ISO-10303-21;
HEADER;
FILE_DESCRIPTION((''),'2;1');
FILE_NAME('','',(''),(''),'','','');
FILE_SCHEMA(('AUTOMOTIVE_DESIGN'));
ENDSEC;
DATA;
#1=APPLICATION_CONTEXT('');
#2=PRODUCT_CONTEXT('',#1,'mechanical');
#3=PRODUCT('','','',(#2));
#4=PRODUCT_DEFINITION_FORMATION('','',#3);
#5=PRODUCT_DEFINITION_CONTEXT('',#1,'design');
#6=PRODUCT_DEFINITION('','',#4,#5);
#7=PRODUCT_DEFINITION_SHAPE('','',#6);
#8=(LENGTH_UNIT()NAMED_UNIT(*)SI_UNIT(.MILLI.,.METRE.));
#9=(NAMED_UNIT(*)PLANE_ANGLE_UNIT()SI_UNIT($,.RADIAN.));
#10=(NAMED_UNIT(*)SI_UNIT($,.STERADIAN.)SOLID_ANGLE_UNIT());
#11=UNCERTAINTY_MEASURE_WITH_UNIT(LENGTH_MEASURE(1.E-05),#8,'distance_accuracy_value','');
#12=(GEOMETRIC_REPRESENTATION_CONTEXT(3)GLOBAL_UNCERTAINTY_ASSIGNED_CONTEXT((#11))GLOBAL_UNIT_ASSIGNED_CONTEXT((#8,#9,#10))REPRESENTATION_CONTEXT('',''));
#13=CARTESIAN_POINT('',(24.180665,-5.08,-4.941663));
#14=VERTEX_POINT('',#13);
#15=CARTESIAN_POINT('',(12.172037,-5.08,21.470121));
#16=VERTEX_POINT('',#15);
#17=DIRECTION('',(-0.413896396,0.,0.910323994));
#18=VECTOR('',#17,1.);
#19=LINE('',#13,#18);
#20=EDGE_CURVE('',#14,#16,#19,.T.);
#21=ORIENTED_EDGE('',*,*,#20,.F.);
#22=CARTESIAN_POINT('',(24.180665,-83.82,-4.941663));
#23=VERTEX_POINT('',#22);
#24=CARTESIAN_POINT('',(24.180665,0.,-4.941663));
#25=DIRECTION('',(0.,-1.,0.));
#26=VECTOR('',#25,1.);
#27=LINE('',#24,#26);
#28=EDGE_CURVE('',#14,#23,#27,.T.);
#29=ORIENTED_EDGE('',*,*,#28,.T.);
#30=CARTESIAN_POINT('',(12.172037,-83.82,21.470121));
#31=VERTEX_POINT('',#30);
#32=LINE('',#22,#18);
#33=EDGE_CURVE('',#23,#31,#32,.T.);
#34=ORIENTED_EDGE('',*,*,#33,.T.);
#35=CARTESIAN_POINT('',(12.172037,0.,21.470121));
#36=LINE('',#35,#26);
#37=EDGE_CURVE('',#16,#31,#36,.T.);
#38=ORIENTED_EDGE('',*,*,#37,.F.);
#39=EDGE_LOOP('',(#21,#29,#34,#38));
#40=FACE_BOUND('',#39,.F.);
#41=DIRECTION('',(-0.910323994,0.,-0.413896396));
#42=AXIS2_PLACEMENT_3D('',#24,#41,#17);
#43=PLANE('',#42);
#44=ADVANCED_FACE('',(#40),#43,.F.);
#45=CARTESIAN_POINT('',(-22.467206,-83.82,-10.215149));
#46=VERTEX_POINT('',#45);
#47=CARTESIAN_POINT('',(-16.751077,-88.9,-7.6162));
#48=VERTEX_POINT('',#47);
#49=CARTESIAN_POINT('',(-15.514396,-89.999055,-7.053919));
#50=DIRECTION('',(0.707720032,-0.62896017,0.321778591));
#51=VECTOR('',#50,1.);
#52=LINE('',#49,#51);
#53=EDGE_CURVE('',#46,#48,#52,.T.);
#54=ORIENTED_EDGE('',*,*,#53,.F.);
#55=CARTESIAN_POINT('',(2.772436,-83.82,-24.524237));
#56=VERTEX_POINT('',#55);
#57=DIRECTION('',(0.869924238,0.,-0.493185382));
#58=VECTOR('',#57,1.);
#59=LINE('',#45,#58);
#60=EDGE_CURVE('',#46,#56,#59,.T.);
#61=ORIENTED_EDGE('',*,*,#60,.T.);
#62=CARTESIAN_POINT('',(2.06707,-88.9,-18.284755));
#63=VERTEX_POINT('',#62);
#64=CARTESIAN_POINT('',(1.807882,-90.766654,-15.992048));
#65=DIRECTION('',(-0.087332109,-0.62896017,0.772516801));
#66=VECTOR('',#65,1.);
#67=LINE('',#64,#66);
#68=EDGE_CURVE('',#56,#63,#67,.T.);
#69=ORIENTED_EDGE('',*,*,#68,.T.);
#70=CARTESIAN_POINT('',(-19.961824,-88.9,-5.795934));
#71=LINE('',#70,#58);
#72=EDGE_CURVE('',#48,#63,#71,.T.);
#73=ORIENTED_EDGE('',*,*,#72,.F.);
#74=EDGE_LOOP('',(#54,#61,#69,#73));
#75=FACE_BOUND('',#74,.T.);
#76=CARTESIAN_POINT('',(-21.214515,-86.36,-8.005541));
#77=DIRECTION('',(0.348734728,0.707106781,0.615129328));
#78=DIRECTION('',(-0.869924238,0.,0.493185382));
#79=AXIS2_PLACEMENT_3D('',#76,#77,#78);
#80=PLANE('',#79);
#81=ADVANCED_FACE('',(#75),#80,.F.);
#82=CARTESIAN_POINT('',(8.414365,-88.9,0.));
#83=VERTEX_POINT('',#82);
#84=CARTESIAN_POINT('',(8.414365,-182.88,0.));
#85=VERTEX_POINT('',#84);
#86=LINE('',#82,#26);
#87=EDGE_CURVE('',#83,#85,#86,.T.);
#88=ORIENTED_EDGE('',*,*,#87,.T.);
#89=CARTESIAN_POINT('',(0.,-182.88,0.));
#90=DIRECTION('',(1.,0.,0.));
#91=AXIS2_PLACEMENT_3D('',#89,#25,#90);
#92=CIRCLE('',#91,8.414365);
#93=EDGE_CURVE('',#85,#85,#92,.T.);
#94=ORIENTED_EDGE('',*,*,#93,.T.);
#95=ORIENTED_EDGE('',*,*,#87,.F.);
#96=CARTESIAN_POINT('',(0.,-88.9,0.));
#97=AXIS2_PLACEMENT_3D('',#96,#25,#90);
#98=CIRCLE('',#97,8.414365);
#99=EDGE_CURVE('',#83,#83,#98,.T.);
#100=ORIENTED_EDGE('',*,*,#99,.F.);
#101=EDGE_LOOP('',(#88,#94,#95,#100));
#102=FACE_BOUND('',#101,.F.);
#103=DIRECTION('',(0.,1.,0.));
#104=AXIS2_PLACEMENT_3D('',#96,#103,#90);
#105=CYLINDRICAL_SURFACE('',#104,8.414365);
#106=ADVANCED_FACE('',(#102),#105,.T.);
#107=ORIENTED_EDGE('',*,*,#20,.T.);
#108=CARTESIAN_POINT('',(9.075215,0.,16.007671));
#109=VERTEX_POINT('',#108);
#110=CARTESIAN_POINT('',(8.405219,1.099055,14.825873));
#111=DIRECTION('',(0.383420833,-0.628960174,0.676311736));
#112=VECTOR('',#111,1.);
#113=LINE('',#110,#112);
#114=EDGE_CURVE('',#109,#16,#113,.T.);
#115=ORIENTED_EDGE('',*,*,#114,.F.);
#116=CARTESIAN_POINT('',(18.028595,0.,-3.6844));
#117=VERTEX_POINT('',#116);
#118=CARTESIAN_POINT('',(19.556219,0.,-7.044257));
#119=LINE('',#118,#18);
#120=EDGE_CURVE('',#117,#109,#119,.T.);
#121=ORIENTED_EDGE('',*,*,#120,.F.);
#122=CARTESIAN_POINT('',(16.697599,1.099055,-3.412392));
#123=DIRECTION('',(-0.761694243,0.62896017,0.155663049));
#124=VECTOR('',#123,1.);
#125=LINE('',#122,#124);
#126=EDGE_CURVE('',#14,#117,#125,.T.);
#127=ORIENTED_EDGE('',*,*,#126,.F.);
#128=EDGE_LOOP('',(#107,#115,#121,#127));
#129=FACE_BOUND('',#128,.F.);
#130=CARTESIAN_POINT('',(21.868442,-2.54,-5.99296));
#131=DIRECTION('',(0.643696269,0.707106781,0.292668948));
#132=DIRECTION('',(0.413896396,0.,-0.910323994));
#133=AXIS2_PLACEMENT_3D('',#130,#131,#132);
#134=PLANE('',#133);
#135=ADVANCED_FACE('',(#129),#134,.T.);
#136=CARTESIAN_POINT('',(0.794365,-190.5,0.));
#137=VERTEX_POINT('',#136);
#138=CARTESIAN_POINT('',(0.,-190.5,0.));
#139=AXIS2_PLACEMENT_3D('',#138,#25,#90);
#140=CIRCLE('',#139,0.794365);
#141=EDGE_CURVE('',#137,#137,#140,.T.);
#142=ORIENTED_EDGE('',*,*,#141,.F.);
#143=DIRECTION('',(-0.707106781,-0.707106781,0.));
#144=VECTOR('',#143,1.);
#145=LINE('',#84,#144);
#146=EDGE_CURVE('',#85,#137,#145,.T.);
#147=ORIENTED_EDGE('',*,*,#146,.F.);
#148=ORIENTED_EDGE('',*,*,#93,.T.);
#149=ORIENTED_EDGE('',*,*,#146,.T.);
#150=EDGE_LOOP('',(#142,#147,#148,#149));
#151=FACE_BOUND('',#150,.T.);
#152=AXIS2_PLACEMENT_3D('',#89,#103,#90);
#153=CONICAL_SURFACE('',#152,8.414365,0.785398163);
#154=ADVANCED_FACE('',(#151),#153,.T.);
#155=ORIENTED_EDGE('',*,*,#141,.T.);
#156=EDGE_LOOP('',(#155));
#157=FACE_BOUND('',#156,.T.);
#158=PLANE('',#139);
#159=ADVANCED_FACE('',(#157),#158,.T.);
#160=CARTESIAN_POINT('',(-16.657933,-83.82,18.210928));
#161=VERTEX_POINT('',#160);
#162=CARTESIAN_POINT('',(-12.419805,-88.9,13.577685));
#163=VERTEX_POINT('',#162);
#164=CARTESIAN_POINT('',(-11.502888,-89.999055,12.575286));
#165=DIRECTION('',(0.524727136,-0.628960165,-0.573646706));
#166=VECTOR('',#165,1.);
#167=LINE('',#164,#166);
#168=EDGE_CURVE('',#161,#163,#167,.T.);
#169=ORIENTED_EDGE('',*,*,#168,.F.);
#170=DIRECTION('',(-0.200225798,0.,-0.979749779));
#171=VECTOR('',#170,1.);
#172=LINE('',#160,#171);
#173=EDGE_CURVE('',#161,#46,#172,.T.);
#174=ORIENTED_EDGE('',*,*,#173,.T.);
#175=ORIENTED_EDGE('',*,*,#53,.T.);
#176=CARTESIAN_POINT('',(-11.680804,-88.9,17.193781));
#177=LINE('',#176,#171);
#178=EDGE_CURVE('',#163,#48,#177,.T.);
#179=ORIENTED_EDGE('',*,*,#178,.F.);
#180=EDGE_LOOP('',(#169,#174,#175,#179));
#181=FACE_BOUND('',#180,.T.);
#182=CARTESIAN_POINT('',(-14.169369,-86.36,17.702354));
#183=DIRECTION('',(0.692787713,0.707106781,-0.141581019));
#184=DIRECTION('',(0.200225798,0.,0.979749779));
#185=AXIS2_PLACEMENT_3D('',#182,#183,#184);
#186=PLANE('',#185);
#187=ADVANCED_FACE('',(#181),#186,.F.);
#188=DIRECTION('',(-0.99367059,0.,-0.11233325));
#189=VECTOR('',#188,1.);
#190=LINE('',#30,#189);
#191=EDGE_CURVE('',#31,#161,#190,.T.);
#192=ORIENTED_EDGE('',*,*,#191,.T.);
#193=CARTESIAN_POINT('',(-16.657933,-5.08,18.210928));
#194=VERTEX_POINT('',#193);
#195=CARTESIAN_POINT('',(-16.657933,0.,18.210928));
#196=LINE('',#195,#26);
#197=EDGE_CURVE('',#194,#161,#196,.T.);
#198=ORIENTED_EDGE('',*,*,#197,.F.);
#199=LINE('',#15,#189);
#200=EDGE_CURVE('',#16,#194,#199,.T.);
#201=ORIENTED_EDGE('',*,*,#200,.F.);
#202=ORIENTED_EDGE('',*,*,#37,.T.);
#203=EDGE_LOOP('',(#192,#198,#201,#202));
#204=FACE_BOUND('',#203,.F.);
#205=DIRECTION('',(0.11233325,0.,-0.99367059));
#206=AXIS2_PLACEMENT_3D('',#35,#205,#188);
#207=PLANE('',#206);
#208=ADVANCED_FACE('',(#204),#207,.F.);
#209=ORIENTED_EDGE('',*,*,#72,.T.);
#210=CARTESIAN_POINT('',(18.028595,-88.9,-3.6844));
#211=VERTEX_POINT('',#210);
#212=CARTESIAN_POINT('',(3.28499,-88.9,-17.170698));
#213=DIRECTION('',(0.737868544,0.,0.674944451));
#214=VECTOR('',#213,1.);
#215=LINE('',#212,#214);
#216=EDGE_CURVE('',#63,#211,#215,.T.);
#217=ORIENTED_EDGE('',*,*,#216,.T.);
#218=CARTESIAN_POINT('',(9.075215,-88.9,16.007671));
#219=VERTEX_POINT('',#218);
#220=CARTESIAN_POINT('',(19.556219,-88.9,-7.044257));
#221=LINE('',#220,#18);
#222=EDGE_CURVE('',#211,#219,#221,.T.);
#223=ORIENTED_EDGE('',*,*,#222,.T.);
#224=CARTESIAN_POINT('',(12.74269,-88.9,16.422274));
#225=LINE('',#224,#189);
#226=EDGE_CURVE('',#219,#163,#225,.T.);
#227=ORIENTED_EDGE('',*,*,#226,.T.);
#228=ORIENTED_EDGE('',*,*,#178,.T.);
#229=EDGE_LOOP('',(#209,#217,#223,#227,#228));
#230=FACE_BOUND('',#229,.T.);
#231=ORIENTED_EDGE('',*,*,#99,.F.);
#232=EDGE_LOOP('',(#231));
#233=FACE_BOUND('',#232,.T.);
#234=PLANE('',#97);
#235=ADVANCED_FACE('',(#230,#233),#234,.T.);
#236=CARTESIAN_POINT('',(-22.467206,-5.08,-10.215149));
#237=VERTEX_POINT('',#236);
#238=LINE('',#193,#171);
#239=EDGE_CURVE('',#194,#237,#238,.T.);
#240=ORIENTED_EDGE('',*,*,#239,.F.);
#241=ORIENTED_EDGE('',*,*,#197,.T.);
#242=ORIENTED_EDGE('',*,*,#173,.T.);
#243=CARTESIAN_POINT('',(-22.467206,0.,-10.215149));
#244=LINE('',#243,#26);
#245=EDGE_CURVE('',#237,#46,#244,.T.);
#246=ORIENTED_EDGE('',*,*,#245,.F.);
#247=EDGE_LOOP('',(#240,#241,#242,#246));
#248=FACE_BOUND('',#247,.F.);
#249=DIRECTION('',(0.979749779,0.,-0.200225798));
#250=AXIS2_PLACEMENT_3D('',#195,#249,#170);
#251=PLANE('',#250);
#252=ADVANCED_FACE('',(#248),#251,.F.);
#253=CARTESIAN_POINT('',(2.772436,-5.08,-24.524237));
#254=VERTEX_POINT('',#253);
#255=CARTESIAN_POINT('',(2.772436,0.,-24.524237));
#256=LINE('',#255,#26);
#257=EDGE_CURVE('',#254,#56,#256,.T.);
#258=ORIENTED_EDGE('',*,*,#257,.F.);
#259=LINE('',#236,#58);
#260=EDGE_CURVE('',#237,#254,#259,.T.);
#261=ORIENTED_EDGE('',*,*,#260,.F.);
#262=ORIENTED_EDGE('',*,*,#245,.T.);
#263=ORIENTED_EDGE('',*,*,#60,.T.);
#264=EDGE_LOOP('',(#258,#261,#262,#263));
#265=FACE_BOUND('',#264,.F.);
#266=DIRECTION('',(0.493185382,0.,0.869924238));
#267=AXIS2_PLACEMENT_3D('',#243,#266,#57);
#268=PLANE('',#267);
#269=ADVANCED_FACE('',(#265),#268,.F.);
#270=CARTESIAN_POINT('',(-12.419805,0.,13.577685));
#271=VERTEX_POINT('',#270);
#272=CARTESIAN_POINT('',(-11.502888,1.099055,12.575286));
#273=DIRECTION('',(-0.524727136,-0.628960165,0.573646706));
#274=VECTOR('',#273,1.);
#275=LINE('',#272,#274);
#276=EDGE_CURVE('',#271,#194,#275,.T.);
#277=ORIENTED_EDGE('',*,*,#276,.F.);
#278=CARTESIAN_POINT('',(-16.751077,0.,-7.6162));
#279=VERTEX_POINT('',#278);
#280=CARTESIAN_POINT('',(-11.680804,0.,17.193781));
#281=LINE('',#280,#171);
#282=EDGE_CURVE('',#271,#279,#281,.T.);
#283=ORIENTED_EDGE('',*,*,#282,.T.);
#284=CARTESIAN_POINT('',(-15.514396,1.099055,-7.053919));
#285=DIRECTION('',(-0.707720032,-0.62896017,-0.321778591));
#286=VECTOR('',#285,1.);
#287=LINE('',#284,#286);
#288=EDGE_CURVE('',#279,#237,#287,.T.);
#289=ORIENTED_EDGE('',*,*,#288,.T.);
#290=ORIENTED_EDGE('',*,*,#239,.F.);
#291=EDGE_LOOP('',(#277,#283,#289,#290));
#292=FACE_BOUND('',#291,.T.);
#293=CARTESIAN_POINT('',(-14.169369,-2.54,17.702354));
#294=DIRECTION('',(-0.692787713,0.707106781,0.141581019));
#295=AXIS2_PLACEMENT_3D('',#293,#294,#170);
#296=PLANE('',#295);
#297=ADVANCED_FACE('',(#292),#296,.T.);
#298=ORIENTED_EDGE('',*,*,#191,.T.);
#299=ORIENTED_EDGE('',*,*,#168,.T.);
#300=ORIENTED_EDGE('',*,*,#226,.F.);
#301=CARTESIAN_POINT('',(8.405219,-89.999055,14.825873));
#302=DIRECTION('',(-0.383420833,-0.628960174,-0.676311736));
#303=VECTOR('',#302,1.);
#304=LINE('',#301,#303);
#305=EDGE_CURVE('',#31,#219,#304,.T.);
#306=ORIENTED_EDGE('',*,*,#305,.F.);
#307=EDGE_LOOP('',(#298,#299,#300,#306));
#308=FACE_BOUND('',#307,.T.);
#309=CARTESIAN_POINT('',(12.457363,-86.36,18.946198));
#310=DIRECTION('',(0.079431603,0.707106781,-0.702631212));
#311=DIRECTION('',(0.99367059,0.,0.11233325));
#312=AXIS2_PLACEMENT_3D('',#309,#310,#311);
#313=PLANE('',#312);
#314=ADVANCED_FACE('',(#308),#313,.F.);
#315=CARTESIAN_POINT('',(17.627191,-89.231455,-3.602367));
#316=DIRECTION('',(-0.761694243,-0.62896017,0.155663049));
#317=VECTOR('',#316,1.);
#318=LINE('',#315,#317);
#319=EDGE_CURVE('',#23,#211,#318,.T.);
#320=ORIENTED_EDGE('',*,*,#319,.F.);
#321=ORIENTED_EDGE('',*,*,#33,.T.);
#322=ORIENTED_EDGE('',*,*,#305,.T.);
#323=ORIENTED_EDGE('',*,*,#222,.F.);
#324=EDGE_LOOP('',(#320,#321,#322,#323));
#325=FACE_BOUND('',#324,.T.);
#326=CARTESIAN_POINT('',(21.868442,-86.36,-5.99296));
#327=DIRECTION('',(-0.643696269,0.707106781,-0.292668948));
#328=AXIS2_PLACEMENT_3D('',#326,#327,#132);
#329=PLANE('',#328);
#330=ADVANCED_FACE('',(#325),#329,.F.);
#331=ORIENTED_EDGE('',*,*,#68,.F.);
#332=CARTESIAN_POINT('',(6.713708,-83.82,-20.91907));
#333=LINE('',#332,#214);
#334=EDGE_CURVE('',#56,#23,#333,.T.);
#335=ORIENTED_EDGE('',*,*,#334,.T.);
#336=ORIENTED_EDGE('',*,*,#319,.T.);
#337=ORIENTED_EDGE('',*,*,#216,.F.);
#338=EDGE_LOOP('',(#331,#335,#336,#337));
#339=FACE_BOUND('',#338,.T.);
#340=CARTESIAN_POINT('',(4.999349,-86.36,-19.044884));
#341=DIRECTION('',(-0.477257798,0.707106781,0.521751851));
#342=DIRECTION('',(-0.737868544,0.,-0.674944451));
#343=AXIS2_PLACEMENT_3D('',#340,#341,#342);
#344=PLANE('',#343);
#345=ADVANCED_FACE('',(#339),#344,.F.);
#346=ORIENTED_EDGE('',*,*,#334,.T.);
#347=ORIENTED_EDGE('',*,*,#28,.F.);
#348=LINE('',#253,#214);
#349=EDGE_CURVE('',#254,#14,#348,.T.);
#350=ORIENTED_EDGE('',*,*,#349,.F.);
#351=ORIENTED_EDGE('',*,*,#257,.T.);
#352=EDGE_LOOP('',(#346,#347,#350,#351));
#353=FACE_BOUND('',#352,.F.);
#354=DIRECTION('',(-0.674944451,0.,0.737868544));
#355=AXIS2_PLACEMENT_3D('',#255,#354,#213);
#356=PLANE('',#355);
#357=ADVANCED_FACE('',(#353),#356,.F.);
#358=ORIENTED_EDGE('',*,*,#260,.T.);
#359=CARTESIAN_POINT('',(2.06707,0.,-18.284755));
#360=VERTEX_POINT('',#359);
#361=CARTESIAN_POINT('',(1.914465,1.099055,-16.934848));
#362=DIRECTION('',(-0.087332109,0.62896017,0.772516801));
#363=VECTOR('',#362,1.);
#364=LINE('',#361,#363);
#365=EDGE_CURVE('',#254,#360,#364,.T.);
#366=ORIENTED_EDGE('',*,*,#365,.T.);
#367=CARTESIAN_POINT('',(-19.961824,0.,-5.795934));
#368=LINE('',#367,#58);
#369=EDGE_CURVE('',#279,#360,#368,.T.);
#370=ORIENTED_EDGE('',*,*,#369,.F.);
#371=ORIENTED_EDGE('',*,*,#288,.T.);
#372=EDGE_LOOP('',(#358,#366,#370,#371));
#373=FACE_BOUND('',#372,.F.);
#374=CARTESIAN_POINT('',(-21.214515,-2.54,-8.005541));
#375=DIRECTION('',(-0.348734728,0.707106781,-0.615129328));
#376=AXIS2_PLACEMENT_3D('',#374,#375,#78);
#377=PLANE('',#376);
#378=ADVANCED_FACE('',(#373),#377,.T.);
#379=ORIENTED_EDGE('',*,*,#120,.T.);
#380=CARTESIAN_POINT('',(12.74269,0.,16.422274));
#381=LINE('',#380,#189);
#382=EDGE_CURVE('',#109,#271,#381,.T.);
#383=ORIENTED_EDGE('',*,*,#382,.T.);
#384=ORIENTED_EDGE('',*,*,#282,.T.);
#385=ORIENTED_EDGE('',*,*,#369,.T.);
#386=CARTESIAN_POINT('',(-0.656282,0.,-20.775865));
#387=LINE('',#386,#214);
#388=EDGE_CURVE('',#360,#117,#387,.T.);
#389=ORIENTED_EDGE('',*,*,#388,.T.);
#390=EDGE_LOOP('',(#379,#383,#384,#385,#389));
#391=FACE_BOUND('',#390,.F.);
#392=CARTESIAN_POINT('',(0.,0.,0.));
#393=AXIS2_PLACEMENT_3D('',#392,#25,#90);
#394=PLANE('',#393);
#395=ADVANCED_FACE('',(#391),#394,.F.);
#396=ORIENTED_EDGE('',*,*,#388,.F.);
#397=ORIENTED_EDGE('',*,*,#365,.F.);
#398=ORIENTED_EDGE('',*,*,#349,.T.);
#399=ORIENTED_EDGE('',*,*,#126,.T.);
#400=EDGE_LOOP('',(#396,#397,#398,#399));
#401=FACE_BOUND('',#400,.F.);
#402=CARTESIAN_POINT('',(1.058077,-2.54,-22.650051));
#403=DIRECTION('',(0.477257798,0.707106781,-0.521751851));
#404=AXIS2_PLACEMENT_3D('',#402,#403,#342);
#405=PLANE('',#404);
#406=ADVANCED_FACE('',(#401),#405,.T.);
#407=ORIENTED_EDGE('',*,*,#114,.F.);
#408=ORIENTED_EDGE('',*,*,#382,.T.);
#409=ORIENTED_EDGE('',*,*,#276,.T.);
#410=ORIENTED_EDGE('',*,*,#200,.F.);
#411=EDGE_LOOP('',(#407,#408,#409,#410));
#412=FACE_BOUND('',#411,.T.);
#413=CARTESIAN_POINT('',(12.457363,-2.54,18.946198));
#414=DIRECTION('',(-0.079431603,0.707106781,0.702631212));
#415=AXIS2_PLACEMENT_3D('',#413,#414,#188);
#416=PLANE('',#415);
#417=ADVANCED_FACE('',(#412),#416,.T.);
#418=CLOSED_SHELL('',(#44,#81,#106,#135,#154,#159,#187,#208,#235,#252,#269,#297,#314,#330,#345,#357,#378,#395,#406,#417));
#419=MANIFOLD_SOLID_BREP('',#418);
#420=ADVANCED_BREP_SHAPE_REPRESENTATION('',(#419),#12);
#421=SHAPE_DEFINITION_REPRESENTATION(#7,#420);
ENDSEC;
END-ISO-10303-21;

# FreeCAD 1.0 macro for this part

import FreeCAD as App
import Part
import Sketcher


def edges_at(feature, points):
    """Names of the edges that pass closest to the given points."""
    edges = feature.Shape.Edges
    near = lambda p: min(range(len(edges)), key=lambda i: edges[i].distToShape(Part.Vertex(*p))[0])
    return sorted({f"Edge{near(p) + 1}" for p in points})


def add_polygon(sketch, points):
    """Adds a closed chain of lines whose ends are joined by coincident constraints."""
    first, n = sketch.GeometryCount, len(points)
    for a, b in zip(points, points[1:] + points[:1]):
        sketch.addGeometry(Part.LineSegment(App.Vector(*a, 0), App.Vector(*b, 0)), False)
    for i in range(n):
        sketch.addConstraint(Sketcher.Constraint("Coincident", first + i, 2, first + (i + 1) % n, 1))

doc = App.newDocument("Part")
params = doc.addObject("Spreadsheet::Sheet", "Params")
for row, (alias, value) in enumerate([
    ("pad1_length", "3.5 in"),
    ("chamfer_size", "0.2 in"),
    ("chamfer2_size", "0.2 in"),
    ("chamfer3_size", "0.2 in"),
    ("chamfer4_size", "0.2 in"),
    ("chamfer5_size", "0.2 in"),
    ("chamfer6_size", "0.2 in"),
    ("pad2_length", "4 in"),
    ("chamfer7_size", "0.3 in"),
], start=1):
    params.set(f"A{row}", alias)
    params.set(f"B{row}", "=" + value)
    params.setAlias(f"B{row}", alias)

body = doc.addObject("PartDesign::Body", "Body")

sketch1 = doc.addObject("Sketcher::SketchObject", "Sketch")
body.addObject(sketch1)
sketch1.AttachmentSupport = (doc.XZ_Plane, [""])
sketch1.MapMode = "FlatFace"
add_polygon(sketch1, [(-22, -10), (3, -25), (24, -5), (12, 21), (-17, 18)])
sketch1.addConstraint([
    Sketcher.Constraint("Equal", 0, 1),
    Sketcher.Constraint("Equal", 1, 2),
    Sketcher.Constraint("Equal", 2, 3),
    Sketcher.Constraint("Equal", 3, 4),
    Sketcher.Constraint("DistanceX", 0, 2, 2, 2, 9.399601),
    Sketcher.Constraint("DistanceX", 3, 2, 1, 2, 40.838598),
    Sketcher.Constraint("Distance", 0, 29.013609),
    Sketcher.Constraint("DistanceY", -1, 1, 2, 2, 21.470121),
    Sketcher.Constraint("DistanceY", 4, 2, -1, 1, 10.215149),
    Sketcher.Constraint("DistanceX", -1, 1, 0, 2, 2.772436),
])
pad1 = doc.addObject("PartDesign::Pad", "Pad")
body.addObject(pad1)
pad1.Profile = sketch1
pad1.setExpression("Length", "Params.pad1_length")
doc.recompute()

chamfer = doc.addObject("PartDesign::Chamfer", "Chamfer")
body.addObject(chamfer)
chamfer.Base = (pad1, edges_at(pad1, [(-9.847, -88.9, -17.37)]))
chamfer.setExpression("Size", "Params.chamfer_size")
doc.recompute()

chamfer2 = doc.addObject("PartDesign::Chamfer", "Chamfer001")
body.addObject(chamfer2)
chamfer2.Base = (chamfer, edges_at(chamfer, [(-19.028, -88.9, 6.615)]))
chamfer2.setExpression("Size", "Params.chamfer2_size")
doc.recompute()

chamfer3 = doc.addObject("PartDesign::Chamfer", "Chamfer002")
body.addObject(chamfer3)
chamfer3.Base = (chamfer2, edges_at(chamfer2, [(0.411, -88.9, 20.141)]))
chamfer3.setExpression("Size", "Params.chamfer3_size")
doc.recompute()

chamfer4 = doc.addObject("PartDesign::Chamfer", "Chamfer003")
body.addObject(chamfer4)
chamfer4.Base = (chamfer3, edges_at(chamfer3, [(19.282, -88.9, 5.833)]))
chamfer4.setExpression("Size", "Params.chamfer4_size")
doc.recompute()

chamfer5 = doc.addObject("PartDesign::Chamfer", "Chamfer004")
body.addObject(chamfer5)
chamfer5.Base = (chamfer4, edges_at(chamfer4, [(13.477, -88.9, -14.733)]))
chamfer5.setExpression("Size", "Params.chamfer5_size")
doc.recompute()

chamfer6 = doc.addObject("PartDesign::Chamfer", "Chamfer005")
body.addObject(chamfer6)
chamfer6.Base = (chamfer5, edges_at(chamfer5, [
    (-19.563, 0, 3.998),
    (-2.243, 0, 19.841),
    (18.176, 0, 8.264),
    (13.477, 0, -14.733),
    (-9.847, 0, -17.37),
]))
chamfer6.setExpression("Size", "Params.chamfer6_size")

sketch2 = doc.addObject("Sketcher::SketchObject", "Sketch001")
body.addObject(sketch2)
sketch2.AttachmentSupport = (doc.XZ_Plane, [""])
sketch2.MapMode = "FlatFace"
sketch2.AttachmentOffset = App.Placement(App.Vector(0, 0, 3.5 * 25.4), App.Rotation())
sketch2.addGeometry(Part.Circle(App.Vector(0, 0, 0), App.Vector(0, 0, 1), 8), False)
sketch2.addConstraint([
    Sketcher.Constraint("Coincident", 0, 3, -1, 1),
    Sketcher.Constraint("Diameter", 0, 16.82873),
])
pad2 = doc.addObject("PartDesign::Pad", "Pad001")
body.addObject(pad2)
pad2.Profile = sketch2
pad2.setExpression("Length", "Params.pad2_length")
doc.recompute()

chamfer7 = doc.addObject("PartDesign::Chamfer", "Chamfer006")
body.addObject(chamfer7)
chamfer7.Base = (pad2, edges_at(pad2, [(-8.414, -190.5, 0)]))
chamfer7.setExpression("Size", "Params.chamfer7_size")

doc.recompute()
